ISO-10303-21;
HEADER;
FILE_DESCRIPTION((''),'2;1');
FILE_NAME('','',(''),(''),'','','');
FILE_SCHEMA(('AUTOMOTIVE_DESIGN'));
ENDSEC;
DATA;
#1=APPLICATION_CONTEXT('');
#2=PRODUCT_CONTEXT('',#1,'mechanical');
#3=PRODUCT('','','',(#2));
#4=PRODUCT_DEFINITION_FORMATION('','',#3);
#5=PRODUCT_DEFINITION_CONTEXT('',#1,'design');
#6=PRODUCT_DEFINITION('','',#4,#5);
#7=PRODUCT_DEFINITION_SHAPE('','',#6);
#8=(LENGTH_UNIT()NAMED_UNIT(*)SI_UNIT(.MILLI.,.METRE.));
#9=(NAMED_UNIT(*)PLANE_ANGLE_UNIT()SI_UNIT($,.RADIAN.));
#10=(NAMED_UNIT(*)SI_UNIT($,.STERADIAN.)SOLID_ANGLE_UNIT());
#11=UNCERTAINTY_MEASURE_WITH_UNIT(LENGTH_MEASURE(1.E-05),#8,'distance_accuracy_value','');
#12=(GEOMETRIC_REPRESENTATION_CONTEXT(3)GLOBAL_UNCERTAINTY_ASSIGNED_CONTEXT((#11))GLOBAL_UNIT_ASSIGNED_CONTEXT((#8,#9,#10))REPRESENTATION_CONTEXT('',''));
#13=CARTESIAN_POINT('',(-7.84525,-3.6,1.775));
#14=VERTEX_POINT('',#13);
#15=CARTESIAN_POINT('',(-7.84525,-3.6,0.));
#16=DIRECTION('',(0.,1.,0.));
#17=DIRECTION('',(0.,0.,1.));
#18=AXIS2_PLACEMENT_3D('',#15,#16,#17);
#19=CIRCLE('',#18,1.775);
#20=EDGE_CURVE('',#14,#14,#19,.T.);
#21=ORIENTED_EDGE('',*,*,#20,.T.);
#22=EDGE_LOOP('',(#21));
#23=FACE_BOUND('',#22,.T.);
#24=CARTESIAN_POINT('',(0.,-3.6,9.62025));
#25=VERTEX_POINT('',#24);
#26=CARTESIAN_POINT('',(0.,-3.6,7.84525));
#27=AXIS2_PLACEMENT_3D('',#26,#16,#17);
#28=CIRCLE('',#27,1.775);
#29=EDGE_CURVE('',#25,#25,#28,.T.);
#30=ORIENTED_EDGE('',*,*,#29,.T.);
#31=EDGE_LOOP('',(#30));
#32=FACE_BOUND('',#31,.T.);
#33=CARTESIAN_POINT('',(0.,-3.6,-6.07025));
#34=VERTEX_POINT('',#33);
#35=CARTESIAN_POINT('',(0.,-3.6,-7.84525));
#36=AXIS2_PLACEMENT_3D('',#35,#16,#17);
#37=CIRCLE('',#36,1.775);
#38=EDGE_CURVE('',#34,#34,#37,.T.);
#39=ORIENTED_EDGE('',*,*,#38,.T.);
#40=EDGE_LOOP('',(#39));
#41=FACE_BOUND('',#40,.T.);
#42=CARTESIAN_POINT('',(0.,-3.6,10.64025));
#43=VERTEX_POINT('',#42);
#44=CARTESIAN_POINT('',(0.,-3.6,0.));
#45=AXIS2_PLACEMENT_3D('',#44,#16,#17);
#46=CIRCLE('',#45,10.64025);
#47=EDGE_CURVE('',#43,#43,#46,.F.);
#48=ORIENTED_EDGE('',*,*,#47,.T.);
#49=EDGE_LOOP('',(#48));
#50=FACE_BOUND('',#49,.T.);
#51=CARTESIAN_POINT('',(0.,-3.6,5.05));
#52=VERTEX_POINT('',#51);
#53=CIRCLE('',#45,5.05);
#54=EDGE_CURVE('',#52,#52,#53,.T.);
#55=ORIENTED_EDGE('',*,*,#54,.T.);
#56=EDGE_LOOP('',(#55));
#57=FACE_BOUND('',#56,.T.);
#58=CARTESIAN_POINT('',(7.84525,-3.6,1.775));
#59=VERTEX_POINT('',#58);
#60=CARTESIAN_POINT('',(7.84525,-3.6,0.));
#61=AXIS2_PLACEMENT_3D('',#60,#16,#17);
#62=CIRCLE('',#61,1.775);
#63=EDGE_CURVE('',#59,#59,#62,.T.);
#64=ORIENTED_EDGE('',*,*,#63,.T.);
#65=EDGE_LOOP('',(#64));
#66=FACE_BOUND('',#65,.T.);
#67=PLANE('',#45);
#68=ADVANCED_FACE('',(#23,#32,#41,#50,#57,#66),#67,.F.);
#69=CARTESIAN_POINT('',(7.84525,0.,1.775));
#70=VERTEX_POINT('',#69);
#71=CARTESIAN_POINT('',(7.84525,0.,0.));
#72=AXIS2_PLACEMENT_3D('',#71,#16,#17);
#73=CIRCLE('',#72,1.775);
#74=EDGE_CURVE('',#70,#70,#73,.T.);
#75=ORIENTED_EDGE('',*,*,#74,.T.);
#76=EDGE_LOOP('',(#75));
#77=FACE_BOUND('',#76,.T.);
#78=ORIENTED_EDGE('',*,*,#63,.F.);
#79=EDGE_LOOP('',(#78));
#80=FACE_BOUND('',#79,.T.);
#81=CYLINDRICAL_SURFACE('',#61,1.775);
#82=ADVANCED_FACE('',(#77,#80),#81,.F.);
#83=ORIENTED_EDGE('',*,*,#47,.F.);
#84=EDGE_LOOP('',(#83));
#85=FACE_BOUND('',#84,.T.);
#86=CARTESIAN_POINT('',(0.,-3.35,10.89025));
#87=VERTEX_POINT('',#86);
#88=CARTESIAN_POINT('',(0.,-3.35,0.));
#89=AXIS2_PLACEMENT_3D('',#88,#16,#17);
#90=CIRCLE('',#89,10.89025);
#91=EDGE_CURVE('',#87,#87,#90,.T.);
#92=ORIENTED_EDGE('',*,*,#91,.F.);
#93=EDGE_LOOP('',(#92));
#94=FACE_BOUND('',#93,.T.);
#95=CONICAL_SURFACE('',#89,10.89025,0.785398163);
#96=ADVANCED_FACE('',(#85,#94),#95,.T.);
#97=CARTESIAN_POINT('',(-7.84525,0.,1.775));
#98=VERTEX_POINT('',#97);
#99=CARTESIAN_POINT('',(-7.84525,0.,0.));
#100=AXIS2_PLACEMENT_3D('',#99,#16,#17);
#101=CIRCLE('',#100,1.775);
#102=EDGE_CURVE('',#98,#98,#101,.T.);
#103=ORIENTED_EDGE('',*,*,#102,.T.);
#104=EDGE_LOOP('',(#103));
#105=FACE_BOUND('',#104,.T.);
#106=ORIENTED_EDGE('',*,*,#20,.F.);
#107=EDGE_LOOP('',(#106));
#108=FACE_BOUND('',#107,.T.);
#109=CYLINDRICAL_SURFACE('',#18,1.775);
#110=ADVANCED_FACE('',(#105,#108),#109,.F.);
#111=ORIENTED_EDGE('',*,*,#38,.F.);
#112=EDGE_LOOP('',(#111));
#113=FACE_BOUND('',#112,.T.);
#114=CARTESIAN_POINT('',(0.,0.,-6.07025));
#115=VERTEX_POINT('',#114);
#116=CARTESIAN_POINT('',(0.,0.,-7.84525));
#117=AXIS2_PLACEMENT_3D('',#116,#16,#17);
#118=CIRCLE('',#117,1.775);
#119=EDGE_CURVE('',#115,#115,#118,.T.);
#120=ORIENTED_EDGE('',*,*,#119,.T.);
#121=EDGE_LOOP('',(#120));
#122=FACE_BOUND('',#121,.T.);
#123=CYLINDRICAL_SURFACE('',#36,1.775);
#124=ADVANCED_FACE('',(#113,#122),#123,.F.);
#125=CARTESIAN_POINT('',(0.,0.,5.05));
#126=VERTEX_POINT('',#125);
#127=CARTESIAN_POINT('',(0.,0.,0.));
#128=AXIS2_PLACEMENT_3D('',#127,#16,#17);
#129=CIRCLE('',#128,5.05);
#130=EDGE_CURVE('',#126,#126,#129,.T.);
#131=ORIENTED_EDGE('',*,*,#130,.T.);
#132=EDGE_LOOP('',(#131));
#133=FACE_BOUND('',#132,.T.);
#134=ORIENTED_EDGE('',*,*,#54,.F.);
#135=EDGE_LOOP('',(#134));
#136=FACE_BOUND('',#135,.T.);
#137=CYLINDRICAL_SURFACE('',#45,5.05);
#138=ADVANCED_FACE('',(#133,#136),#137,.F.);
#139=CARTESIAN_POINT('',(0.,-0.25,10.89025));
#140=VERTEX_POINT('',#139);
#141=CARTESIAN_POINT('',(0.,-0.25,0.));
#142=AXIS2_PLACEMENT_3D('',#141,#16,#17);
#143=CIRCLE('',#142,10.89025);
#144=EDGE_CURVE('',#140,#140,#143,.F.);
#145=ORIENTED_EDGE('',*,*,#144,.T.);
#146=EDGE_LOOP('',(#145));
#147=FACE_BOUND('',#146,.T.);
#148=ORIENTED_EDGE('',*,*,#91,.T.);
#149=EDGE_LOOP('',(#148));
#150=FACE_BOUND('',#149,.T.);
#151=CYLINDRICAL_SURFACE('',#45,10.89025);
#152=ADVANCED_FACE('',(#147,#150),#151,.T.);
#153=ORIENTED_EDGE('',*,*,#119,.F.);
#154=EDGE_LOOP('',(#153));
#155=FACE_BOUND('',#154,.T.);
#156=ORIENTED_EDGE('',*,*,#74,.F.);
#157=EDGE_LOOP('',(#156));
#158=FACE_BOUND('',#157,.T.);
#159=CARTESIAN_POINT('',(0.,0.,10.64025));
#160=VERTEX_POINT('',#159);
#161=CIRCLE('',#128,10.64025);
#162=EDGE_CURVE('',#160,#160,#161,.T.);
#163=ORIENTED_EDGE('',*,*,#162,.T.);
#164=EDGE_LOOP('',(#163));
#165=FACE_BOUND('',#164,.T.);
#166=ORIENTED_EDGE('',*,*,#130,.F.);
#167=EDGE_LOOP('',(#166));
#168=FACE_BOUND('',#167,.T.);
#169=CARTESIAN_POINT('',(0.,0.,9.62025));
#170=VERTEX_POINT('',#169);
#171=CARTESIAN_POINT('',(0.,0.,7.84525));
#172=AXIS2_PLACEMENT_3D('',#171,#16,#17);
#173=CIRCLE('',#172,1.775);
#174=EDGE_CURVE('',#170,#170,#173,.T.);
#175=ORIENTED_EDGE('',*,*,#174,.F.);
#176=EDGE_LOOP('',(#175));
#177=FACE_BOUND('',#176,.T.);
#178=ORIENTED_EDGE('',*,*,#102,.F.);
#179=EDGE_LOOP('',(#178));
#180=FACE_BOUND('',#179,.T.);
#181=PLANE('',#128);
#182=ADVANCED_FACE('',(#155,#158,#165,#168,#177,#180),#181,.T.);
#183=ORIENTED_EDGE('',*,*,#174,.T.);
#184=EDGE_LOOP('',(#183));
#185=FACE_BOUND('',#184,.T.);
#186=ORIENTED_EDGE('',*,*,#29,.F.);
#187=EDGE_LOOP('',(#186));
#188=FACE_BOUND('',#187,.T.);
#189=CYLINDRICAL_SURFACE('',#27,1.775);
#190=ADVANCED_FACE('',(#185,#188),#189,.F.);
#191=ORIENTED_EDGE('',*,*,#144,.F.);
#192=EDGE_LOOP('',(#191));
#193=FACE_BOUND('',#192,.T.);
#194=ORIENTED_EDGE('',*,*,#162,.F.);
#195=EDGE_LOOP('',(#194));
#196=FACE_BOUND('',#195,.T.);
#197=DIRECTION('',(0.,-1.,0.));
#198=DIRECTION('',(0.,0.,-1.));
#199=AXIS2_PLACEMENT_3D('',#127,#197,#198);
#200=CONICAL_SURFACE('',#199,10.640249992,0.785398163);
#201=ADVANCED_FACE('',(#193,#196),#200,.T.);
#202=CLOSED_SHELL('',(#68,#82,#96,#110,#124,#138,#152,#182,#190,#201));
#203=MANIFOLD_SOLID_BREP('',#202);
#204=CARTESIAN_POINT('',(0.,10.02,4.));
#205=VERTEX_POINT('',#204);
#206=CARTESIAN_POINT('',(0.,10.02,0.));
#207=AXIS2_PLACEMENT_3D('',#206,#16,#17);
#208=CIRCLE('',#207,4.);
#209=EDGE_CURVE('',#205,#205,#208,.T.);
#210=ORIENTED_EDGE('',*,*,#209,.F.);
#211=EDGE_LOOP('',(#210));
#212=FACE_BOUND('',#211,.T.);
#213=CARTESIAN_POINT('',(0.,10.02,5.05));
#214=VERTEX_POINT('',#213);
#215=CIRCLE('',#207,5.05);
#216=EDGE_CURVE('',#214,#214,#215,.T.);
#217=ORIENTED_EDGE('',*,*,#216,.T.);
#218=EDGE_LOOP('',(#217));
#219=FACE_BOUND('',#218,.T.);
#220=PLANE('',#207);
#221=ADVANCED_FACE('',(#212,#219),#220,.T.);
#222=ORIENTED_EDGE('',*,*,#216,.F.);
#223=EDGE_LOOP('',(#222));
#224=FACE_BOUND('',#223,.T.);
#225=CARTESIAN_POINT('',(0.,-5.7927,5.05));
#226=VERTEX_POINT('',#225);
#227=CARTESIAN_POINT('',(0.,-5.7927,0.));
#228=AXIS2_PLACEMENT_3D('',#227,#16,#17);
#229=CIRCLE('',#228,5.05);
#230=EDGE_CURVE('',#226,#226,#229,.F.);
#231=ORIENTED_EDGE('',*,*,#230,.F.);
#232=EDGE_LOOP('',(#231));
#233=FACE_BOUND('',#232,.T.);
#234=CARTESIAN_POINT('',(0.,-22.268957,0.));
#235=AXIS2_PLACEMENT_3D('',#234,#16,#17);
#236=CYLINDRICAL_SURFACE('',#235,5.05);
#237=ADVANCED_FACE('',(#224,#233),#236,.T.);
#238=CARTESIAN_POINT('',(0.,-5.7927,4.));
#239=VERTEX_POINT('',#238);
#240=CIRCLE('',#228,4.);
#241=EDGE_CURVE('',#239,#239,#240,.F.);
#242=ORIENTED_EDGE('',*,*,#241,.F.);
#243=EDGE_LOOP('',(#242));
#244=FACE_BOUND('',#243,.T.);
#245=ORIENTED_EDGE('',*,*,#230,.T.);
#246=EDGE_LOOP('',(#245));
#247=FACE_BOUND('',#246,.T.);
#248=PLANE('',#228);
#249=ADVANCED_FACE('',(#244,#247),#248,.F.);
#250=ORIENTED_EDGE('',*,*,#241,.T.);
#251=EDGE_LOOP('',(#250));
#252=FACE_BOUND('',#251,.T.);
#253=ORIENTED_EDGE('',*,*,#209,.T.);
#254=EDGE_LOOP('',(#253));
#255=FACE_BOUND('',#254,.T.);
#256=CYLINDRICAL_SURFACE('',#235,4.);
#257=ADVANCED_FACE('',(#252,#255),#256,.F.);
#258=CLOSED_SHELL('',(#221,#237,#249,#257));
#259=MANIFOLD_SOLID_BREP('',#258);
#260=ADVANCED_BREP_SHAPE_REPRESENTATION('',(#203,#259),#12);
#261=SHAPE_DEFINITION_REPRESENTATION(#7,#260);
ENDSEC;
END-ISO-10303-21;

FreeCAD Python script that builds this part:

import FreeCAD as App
import Part
import Sketcher


def edges_at(feature, points):
    """Names of the edges that pass closest to the given points."""
    edges = feature.Shape.Edges
    near = lambda p: min(range(len(edges)), key=lambda i: edges[i].distToShape(Part.Vertex(*p))[0])
    return sorted({f"Edge{near(p) + 1}" for p in points})

doc = App.newDocument("Part")
body = doc.addObject("PartDesign::Body", "Body")

sketch1 = body.newObject("Sketcher::SketchObject", "Sketch")
sketch1.AttachmentSupport = (doc.getObject("XZ_Plane"), [""])
sketch1.MapMode = "FlatFace"
sketch1.addGeometry([
    Part.Circle(App.Vector(0, 0, 0), App.Vector(0, 0, 1), 10.89025),
    Part.Circle(App.Vector(0, 7.84525, 0), App.Vector(0, 0, 1), 1.775),
    Part.Circle(App.Vector(-7.84525, 0, 0), App.Vector(0, 0, 1), 1.775),
    Part.Circle(App.Vector(0, 0, 0), App.Vector(0, 0, 1), 5.05),
    Part.Circle(App.Vector(0, -7.84525, 0), App.Vector(0, 0, 1), 1.775),
    Part.Circle(App.Vector(7.84525, 0, 0), App.Vector(0, 0, 1), 1.775),
], False)
sketch1.addConstraint([
    Sketcher.Constraint("Coincident", 0, 3, -1, 1),
    Sketcher.Constraint("Coincident", 3, 3, -1, 1),
    Sketcher.Constraint("Equal", 1, 2),
    Sketcher.Constraint("Equal", 2, 4),
    Sketcher.Constraint("Equal", 4, 5),
    Sketcher.Constraint("Symmetric", 1, 3, 4, 3, -1, 1),
    Sketcher.Constraint("Symmetric", 2, 3, 5, 3, -1, 1),
    Sketcher.Constraint("PointOnObject", 1, 3, -2),
    Sketcher.Constraint("PointOnObject", 2, 3, -1),
    Sketcher.Constraint("Diameter", 3, 10.1),
    Sketcher.Constraint("Diameter", 1, 3.55),
    Sketcher.Constraint("Diameter", 0, 21.7805),
    Sketcher.Constraint("DistanceY", 4, 3, 1, 3, 15.6905),
    Sketcher.Constraint("DistanceX", 2, 3, 5, 3, 15.6905),
])
pad1 = body.newObject("PartDesign::Pad", "Pad")
pad1.Profile = sketch1
pad1.Length = 3.6
doc.recompute()

chamfer = body.newObject("PartDesign::Chamfer", "Chamfer")
chamfer.Base = (pad1, edges_at(pad1, [(-10.89, -3.6, 0), (-10.89, 0, 0)]))
chamfer.Size = 0.25
body2 = doc.addObject("PartDesign::Body", "Body001")

sketch2 = body2.newObject("Sketcher::SketchObject", "Sketch001")
sketch2.AttachmentSupport = (doc.getObject("XZ_Plane001"), [""])
sketch2.MapMode = "FlatFace"
sketch2.addGeometry([
    Part.Circle(App.Vector(0, 0, 0), App.Vector(0, 0, 1), 5.05),
    Part.Circle(App.Vector(0, 0, 0), App.Vector(0, 0, 1), 4),
], False)
sketch2.addConstraint([
    Sketcher.Constraint("Coincident", 0, 3, -1, 1),
    Sketcher.Constraint("Coincident", 1, 3, -1, 1),
    Sketcher.Constraint("Diameter", 1, 8.0),
    Sketcher.Constraint("Diameter", 0, 10.1),
])
pad2 = body2.newObject("PartDesign::Pad", "Pad001")
pad2.Profile = sketch2
pad2.Type = "TwoLengths"
pad2.Length = 10.02
pad2.Length2 = 5.7927
pad2.Reversed = True

doc.recompute()
